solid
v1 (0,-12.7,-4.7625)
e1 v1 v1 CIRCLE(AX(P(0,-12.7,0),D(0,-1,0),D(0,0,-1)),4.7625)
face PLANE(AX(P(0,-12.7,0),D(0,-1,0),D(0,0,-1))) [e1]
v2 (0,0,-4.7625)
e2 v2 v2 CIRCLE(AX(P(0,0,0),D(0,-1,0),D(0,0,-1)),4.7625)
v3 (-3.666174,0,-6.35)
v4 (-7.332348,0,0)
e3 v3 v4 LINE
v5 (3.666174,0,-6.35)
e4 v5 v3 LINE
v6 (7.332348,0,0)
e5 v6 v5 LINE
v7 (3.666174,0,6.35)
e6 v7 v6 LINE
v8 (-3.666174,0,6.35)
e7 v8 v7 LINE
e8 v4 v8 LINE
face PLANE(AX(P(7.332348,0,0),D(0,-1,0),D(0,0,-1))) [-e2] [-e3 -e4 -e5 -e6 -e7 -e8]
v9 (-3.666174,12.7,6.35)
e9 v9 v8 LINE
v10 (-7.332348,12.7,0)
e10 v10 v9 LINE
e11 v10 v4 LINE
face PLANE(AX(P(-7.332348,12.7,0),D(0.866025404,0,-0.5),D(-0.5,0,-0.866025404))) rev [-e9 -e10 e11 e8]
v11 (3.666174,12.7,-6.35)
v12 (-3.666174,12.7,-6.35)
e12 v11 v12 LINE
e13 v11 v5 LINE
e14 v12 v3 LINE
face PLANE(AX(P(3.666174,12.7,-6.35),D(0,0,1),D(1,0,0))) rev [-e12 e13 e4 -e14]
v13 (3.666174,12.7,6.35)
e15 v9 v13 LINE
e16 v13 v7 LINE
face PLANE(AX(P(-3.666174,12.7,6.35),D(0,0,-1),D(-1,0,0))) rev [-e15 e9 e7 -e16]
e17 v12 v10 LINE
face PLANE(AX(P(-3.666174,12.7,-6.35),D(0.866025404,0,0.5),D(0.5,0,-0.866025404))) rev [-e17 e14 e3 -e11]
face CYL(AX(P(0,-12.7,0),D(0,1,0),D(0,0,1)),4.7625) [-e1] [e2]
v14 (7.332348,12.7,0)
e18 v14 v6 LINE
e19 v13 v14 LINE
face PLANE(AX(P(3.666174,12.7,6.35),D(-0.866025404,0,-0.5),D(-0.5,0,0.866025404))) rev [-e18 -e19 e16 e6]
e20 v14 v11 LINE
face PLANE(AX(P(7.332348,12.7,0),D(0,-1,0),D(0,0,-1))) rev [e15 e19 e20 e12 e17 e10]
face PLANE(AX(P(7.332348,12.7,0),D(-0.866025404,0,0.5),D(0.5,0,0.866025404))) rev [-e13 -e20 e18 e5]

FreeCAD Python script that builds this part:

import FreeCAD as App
import Part
import Sketcher
from FreeCAD import Vector
Q = App.Units.Quantity


def add_polygon(sketch, points):
    """Adds a closed chain of lines whose ends are joined by coincident constraints."""
    first, n = sketch.GeometryCount, len(points)
    for a, b in zip(points, points[1:] + points[:1]):
        sketch.addGeometry(Part.LineSegment(App.Vector(*a, 0), App.Vector(*b, 0)), False)
    for i in range(n):
        sketch.addConstraint(Sketcher.Constraint("Coincident", first + i, 2, first + (i + 1) % n, 1))

doc = App.newDocument("Part")
params = doc.addObject("Spreadsheet::Sheet", "Params")
for row, (alias, value) in enumerate([
    ("pad1_length", "0.5 in"),
    ("sketch2_diameter", "0.375 in"),
    ("pad2_length", "0.5 in"),
], start=1):
    params.set(f"A{row}", alias)
    params.set(f"B{row}", "=" + value)
    params.setAlias(f"B{row}", alias)

body = doc.addObject("PartDesign::Body", "Body")

# Sketch on XZ plane
sketch1 = body.newObject("Sketcher::SketchObject", "Sketch")
sketch1.AttachmentSupport = (doc.getObject("XZ_Plane"), [""])
sketch1.MapMode = "FlatFace"
add_polygon(sketch1, [(4, -6), (-4, -6), (-7, 0), (-4, 6), (4, 6), (7, 0)])  # lines 0-5
sketch1.addConstraint(Sketcher.Constraint("Horizontal", 0))
sketch1.addConstraint(Sketcher.Constraint("Horizontal", 3))
sketch1.addConstraint(Sketcher.Constraint("Symmetric", 0, 2, 3, 2, -1, 1))
sketch1.addConstraint(Sketcher.Constraint("Symmetric", 1, 2, 4, 2, -1, 1))
sketch1.addConstraint(Sketcher.Constraint("PointOnObject", 1, 2, -1))
sketch1.addConstraint(Sketcher.Constraint("Parallel", 2, 5))
sketch1.addConstraint(Sketcher.Constraint("Vertical", 0, 2, 2, 2))
sketch1.addConstraint(Sketcher.Constraint("Angle", 1, Q("120 deg")))
sketch1.addConstraint(Sketcher.Constraint("DistanceY", 0, 2, 2, 2, Q("0.5 in")))
sketch1.addConstraint(Sketcher.Constraint("DistanceX", 0, 2, 0, 1, 7.332348))
pad1 = body.newObject("PartDesign::Pad", "Pad")
pad1.Profile = sketch1
pad1.setExpression("Length", "Params.pad1_length")
pad1.Reversed = True

# Sketch on XZ plane
sketch2 = body.newObject("Sketcher::SketchObject", "Sketch001")
sketch2.AttachmentSupport = (doc.getObject("XZ_Plane"), [""])
sketch2.MapMode = "FlatFace"
sketch2.addGeometry(Part.Circle(Vector(0, 0, 0), Vector(0, 0, 1), 4.8), False)
sketch2.addConstraint(Sketcher.Constraint("Coincident", 0, 3, -1, 1))
sketch2.addConstraint(Sketcher.Constraint("Diameter", 0, Q("0.375 in")))
sketch2.setExpression("Constraints[1]", "Params.sketch2_diameter")
pad2 = body.newObject("PartDesign::Pad", "Pad001")
pad2.Profile = sketch2
pad2.setExpression("Length", "Params.pad2_length")

doc.recompute()
